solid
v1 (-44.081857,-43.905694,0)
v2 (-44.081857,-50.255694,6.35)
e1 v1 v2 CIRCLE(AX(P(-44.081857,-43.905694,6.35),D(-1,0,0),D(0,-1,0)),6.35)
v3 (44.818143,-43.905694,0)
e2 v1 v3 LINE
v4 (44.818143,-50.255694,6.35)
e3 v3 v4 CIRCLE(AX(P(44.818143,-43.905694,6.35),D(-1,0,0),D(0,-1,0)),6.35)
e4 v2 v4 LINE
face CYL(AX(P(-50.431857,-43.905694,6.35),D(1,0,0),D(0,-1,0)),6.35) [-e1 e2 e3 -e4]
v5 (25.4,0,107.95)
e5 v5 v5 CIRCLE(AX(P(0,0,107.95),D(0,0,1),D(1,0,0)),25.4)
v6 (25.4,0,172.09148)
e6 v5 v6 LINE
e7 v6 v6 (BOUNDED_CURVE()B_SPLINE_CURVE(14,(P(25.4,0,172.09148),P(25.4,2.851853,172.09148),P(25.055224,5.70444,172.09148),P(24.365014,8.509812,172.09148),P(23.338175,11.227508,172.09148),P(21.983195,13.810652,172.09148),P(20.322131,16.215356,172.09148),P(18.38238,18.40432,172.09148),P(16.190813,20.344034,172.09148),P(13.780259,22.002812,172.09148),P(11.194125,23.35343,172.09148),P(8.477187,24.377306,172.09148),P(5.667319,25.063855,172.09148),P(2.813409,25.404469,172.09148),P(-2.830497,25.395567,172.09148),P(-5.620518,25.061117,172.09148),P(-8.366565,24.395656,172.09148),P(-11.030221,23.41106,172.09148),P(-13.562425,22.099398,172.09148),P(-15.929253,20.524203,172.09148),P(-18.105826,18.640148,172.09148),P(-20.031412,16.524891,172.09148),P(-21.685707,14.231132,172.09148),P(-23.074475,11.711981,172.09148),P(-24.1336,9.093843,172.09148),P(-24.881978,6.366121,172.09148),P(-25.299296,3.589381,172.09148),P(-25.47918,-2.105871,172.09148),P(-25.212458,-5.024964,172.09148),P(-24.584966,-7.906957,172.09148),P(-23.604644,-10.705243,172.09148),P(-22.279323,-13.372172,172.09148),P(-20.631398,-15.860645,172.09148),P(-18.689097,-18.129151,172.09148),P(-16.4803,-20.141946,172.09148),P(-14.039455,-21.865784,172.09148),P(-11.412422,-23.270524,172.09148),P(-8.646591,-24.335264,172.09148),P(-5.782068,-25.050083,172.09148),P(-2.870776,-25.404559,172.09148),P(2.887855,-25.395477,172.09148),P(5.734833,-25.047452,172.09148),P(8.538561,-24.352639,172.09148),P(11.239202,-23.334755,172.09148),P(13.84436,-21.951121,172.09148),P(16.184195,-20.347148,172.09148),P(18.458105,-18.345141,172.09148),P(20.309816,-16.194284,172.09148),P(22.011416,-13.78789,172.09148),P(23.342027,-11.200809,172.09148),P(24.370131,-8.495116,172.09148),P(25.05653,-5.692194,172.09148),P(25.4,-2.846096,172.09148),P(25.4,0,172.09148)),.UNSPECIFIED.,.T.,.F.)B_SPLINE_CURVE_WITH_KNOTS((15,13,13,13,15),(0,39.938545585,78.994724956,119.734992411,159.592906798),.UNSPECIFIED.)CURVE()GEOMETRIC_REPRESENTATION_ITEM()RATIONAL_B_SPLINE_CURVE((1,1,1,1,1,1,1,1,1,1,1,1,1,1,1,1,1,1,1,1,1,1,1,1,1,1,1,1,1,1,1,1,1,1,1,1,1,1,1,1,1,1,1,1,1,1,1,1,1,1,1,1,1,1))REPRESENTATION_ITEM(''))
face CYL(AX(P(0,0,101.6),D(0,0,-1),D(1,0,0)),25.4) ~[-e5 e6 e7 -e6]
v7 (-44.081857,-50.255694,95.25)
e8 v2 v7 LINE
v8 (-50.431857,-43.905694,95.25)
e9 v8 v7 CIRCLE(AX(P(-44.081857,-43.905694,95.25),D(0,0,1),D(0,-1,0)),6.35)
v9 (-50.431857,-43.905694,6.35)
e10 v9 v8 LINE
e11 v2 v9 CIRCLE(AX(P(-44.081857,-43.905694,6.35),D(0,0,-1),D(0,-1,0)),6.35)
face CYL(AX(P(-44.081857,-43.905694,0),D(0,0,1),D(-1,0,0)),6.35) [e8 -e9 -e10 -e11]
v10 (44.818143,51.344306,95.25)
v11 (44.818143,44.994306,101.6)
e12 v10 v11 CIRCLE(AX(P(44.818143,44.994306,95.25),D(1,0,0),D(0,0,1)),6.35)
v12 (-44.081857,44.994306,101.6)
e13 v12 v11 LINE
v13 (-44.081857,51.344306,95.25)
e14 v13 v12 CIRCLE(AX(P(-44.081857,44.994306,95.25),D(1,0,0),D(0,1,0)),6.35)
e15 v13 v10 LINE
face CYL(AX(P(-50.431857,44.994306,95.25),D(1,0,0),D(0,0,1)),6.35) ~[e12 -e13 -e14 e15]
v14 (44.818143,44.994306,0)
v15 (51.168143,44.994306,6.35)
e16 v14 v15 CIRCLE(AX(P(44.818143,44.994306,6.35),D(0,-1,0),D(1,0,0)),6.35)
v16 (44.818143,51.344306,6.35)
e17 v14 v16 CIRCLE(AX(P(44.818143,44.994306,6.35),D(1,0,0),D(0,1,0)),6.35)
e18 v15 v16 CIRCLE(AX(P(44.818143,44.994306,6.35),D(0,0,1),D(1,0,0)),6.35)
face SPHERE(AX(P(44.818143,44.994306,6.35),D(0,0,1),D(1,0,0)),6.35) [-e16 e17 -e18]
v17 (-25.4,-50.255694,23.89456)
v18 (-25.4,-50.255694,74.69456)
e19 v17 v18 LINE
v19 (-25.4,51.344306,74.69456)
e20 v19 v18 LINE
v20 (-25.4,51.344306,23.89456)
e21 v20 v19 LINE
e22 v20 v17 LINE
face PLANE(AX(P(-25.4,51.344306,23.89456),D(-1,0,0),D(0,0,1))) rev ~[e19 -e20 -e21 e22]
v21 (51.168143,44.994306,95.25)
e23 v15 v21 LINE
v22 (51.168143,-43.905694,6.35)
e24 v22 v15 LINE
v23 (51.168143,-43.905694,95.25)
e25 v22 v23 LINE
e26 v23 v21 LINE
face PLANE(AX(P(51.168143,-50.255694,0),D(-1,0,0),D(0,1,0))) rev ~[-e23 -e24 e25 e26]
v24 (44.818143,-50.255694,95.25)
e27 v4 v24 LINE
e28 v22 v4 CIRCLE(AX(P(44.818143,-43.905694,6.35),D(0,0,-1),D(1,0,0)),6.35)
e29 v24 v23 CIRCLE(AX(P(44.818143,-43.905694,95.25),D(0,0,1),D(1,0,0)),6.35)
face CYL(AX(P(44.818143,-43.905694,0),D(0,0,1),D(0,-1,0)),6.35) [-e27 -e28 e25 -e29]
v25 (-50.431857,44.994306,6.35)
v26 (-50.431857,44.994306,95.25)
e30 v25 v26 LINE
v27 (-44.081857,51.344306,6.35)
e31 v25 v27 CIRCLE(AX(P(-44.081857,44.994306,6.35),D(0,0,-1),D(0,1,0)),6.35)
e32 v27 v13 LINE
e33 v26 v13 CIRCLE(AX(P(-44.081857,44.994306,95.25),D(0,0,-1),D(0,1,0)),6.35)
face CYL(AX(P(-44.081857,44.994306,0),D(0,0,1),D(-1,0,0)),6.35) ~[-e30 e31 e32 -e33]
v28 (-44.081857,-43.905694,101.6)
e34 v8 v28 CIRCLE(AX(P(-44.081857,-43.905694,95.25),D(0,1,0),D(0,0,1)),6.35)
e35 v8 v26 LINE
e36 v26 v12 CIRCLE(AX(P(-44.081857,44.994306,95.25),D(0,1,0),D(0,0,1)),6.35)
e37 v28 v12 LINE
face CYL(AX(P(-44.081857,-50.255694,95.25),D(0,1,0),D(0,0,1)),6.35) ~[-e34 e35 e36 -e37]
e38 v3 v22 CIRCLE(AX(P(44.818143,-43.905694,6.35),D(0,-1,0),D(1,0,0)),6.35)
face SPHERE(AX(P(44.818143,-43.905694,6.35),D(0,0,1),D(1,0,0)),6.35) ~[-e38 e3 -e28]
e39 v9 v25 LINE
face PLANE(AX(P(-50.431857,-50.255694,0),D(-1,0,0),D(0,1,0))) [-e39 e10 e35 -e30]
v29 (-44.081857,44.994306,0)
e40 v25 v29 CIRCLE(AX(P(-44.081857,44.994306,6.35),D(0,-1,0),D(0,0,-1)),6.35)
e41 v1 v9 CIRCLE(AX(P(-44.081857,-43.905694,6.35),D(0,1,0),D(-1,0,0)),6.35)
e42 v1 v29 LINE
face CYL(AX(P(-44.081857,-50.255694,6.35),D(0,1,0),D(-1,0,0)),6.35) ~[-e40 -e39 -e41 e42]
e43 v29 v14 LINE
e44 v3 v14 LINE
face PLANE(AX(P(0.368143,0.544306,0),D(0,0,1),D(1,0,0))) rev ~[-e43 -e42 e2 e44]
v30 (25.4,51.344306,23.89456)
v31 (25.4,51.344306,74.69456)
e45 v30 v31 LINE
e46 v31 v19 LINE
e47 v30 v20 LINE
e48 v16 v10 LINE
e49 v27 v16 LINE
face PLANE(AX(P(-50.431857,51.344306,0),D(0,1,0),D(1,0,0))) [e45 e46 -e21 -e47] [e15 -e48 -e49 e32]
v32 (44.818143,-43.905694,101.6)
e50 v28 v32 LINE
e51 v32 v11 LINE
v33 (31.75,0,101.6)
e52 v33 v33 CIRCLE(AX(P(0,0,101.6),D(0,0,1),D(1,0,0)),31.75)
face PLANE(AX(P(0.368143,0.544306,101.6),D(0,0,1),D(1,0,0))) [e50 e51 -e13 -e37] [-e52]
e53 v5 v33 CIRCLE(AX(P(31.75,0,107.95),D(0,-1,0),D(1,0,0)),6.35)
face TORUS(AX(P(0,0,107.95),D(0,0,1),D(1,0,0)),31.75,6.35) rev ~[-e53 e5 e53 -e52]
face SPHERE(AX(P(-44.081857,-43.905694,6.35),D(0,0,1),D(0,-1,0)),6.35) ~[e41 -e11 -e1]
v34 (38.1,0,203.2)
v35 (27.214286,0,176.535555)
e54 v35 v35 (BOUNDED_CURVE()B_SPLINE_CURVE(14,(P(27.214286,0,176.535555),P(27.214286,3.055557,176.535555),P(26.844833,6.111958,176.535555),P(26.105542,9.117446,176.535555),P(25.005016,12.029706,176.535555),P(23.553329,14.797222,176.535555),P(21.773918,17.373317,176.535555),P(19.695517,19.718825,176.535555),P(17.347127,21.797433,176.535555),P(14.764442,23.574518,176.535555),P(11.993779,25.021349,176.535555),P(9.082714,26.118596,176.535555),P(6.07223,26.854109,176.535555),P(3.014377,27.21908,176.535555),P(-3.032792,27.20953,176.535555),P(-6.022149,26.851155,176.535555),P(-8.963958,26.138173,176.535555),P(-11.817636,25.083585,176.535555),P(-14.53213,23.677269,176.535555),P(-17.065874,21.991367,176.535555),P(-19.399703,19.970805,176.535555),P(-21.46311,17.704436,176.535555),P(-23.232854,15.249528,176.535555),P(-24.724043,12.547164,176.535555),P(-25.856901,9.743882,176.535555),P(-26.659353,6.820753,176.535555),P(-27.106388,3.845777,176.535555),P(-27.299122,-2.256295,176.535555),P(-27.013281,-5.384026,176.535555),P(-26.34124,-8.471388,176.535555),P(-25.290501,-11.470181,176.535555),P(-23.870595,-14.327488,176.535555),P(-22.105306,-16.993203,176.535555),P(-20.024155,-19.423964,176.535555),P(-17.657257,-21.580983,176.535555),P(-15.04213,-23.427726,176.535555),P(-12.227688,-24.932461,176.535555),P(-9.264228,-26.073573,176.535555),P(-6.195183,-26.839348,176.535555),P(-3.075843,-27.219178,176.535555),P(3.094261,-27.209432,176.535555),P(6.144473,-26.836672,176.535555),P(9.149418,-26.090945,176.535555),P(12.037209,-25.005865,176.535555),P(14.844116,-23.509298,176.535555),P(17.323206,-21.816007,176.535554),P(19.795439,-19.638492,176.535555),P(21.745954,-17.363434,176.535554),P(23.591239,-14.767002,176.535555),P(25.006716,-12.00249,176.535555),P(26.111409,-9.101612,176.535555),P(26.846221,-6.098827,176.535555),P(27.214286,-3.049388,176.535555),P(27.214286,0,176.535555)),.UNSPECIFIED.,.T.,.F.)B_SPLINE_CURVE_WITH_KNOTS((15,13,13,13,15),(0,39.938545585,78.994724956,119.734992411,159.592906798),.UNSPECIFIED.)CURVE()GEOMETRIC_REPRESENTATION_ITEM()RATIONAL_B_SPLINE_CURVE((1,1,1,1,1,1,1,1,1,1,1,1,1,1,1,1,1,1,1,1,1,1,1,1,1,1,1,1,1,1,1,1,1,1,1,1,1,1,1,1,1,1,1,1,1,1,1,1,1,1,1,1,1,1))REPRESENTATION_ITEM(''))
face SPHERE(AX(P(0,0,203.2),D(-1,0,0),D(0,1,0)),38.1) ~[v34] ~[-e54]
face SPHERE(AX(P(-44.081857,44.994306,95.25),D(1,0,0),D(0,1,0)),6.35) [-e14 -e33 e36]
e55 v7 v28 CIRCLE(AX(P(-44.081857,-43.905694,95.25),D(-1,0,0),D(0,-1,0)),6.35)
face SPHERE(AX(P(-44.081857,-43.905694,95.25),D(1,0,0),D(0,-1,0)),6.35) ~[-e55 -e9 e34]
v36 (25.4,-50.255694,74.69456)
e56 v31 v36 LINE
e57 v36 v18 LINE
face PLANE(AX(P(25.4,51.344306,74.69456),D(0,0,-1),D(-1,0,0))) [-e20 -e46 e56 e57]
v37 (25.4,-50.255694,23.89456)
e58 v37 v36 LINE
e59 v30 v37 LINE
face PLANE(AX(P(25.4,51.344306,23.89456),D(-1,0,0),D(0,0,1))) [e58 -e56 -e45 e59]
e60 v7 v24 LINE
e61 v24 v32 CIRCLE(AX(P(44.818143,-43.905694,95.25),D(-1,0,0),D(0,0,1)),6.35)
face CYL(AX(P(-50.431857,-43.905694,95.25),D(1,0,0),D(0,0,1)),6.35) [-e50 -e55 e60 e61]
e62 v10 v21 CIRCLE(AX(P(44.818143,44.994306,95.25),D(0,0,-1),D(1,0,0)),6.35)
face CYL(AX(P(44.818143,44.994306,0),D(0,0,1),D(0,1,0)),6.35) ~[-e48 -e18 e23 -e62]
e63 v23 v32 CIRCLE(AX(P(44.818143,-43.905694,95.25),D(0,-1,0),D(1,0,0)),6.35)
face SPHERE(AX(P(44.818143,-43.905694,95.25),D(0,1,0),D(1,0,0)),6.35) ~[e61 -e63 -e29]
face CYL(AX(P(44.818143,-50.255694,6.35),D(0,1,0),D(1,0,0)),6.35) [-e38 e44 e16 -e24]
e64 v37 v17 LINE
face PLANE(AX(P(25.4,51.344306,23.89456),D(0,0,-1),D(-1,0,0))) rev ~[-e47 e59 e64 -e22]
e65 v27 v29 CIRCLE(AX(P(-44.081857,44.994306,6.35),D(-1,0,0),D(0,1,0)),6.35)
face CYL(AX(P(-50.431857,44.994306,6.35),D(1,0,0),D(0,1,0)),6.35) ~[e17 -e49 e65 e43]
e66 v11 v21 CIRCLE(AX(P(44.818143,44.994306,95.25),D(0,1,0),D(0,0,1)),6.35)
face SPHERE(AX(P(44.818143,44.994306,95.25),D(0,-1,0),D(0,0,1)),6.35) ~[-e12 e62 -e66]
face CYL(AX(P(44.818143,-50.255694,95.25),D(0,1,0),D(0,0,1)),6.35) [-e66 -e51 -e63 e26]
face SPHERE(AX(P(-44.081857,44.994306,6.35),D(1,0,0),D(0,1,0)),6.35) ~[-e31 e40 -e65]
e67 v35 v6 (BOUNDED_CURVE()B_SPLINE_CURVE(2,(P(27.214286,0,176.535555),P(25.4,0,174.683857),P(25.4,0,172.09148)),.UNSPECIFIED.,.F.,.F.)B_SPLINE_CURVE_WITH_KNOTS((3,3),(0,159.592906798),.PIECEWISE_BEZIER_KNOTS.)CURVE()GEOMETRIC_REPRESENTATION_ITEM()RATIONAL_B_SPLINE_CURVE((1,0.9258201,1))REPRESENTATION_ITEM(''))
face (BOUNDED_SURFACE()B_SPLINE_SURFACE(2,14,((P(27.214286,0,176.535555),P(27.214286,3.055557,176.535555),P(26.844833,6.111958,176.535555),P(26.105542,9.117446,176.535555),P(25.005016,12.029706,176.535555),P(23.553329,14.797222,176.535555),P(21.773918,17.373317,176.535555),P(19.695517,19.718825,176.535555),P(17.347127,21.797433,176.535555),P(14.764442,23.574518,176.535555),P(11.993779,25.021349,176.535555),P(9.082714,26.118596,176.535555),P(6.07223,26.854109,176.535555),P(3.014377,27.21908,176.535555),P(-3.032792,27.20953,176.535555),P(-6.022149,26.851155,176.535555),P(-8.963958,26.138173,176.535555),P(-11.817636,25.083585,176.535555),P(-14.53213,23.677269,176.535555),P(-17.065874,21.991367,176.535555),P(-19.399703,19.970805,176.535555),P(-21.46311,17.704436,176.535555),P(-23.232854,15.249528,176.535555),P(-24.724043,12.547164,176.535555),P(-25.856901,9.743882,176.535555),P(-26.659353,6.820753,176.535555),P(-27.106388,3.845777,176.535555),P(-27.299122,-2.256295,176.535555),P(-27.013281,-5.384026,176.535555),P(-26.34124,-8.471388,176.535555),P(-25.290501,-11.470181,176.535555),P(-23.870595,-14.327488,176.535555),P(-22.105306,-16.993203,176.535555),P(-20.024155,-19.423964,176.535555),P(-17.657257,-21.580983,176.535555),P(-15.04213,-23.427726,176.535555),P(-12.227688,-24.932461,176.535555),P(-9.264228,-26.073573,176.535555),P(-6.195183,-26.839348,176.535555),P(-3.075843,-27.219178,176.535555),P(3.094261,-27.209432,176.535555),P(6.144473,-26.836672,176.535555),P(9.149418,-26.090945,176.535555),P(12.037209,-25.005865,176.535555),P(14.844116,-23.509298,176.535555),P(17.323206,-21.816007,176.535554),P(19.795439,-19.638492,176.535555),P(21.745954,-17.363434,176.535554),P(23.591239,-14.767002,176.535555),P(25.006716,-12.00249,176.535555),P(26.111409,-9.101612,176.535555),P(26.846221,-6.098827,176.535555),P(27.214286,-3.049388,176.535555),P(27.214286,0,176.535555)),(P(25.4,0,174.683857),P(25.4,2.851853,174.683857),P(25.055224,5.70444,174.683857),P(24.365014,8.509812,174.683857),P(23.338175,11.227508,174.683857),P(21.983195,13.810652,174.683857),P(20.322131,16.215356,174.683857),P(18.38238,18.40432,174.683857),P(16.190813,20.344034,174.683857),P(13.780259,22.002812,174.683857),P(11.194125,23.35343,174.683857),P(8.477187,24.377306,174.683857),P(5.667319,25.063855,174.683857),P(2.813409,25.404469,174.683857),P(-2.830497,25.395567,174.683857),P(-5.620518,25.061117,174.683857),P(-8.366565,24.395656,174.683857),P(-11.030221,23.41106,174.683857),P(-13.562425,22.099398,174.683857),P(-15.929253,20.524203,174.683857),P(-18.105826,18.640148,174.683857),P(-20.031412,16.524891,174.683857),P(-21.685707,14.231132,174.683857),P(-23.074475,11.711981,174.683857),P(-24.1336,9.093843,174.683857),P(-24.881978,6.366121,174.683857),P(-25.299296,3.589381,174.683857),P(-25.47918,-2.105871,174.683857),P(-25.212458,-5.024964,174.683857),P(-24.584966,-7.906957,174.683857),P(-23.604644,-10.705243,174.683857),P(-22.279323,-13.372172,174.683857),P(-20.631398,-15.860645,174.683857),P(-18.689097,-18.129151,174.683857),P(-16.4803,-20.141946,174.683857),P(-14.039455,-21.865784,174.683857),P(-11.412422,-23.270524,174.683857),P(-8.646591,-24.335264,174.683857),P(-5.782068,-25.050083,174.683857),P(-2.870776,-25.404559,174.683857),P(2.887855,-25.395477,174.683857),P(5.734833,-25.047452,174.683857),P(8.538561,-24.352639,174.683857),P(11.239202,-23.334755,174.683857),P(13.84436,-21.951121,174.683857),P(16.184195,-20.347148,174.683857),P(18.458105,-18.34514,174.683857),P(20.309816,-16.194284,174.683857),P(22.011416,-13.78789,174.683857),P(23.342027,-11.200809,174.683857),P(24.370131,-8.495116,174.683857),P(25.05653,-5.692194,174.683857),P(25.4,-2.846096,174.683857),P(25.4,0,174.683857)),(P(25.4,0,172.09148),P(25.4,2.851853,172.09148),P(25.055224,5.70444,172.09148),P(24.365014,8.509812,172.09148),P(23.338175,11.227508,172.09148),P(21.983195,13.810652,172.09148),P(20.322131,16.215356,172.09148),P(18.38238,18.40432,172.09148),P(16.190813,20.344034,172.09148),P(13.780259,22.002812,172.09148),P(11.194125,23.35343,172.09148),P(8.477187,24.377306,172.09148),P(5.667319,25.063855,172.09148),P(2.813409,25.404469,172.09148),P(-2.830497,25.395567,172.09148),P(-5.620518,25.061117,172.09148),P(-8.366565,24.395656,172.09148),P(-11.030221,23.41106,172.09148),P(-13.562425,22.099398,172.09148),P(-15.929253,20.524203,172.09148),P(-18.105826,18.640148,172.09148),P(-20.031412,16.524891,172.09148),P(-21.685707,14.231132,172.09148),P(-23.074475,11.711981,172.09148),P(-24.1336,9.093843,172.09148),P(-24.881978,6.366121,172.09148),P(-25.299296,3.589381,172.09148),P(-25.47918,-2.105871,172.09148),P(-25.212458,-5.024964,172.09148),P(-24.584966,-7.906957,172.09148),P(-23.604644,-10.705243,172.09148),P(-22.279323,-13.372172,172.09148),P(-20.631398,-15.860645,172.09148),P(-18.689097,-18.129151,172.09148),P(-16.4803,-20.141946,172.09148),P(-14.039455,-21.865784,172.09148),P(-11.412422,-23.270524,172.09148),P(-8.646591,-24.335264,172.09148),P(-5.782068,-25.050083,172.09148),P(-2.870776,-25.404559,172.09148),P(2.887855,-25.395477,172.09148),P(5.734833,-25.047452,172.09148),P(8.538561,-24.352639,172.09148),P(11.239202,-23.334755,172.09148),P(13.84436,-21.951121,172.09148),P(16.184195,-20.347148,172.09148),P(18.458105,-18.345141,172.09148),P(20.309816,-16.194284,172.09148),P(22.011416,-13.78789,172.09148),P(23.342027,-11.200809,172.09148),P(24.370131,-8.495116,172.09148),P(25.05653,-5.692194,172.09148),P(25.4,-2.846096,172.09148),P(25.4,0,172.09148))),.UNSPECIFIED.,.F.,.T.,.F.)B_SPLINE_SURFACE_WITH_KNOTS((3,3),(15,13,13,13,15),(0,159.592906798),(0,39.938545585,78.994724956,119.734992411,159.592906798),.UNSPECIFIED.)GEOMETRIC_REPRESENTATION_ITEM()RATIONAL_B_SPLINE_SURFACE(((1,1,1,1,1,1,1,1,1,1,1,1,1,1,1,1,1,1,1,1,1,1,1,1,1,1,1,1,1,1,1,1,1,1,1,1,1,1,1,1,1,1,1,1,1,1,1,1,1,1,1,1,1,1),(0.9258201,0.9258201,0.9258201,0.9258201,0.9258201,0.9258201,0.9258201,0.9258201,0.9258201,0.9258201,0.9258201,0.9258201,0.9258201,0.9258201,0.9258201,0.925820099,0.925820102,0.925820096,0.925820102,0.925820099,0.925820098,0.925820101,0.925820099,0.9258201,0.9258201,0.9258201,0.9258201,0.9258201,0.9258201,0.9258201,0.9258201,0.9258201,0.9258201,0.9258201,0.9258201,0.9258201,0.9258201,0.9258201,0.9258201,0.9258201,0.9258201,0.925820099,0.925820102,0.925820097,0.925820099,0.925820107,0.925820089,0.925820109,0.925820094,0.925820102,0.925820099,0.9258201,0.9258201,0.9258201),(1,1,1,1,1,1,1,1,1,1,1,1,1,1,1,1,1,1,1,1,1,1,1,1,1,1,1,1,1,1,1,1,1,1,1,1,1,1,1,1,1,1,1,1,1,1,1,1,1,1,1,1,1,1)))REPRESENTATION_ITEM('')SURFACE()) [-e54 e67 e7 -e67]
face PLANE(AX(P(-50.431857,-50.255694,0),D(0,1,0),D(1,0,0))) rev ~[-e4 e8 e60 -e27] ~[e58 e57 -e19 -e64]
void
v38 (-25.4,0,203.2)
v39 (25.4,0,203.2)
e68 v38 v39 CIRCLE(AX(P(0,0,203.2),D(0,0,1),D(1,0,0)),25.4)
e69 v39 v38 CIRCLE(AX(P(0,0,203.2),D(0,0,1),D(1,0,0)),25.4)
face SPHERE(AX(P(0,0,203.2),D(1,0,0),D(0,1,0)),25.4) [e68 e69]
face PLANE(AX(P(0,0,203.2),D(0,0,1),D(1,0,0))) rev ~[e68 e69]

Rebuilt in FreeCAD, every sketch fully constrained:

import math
import FreeCAD as App
import Part
import Sketcher
Q = App.Units.Quantity


def edges_at(feature, points):
    """Names of the edges that pass closest to the given points."""
    edges = feature.Shape.Edges
    near = lambda p: min(range(len(edges)), key=lambda i: edges[i].distToShape(Part.Vertex(*p))[0])
    return sorted({f"Edge{near(p) + 1}" for p in points})

doc = App.newDocument("Part")
body = doc.addObject("PartDesign::Body", "Body")

# Sketch on XY plane
sketch1 = body.newObject("Sketcher::SketchObject", "Sketch")
sketch1.AttachmentSupport = (doc.getObject("XY_Plane"), [""])
sketch1.MapMode = "FlatFace"
sketch1.addGeometry([
    Part.LineSegment(App.Vector(-50, 51, 0), App.Vector(-50, -50, 0)),
    Part.LineSegment(App.Vector(-50, -50, 0), App.Vector(51, -50, 0)),
    Part.LineSegment(App.Vector(51, -50, 0), App.Vector(51, 51, 0)),
    Part.LineSegment(App.Vector(51, 51, 0), App.Vector(-50, 51, 0)),
], False)
sketch1.addConstraint([
    Sketcher.Constraint("Coincident", 0, 2, 1, 1),
    Sketcher.Constraint("Coincident", 1, 2, 2, 1),
    Sketcher.Constraint("Coincident", 2, 2, 3, 1),
    Sketcher.Constraint("Coincident", 3, 2, 0, 1),
    Sketcher.Constraint("Vertical", 0),
    Sketcher.Constraint("Horizontal", 1),
    Sketcher.Constraint("Vertical", 2),
    Sketcher.Constraint("Horizontal", 3),
    Sketcher.Constraint("Equal", 3, 0),
    Sketcher.Constraint("DistanceX", 1, 1, 1, 2, Q("4 in")),
    Sketcher.Constraint("DistanceX", 0, 2, -1, 1, Q("50.431857 mm")),
    Sketcher.Constraint("DistanceY", 0, 2, -1, 1, Q("50.255694 mm")),
])
pad1 = body.newObject("PartDesign::Pad", "Pad")
pad1.Profile = sketch1
pad1.Length = Q("4 in")

# Sketch on XY plane
sketch2 = body.newObject("Sketcher::SketchObject", "Sketch001")
sketch2.AttachmentSupport = (doc.getObject("XY_Plane"), [""])
sketch2.MapMode = "FlatFace"
sketch2.AttachmentOffset = App.Placement(App.Vector(0, 0, 4 * 25.4), App.Rotation())
sketch2.addGeometry(Part.Circle(App.Vector(0, 0, 0), App.Vector(0, 0, 1), 25), False)
sketch2.addConstraint([
    Sketcher.Constraint("Coincident", 0, 3, -1, 1),
    Sketcher.Constraint("Diameter", 0, Q("2 in")),
])
pad2 = body.newObject("PartDesign::Pad", "Pad001")
pad2.Profile = sketch2
pad2.Length = Q("4 in")

# Sketch on XY plane
sketch3 = body.newObject("Sketcher::SketchObject", "Sketch002")
sketch3.AttachmentSupport = (doc.getObject("XY_Plane"), [""])
sketch3.MapMode = "FlatFace"
sketch3.AttachmentOffset = App.Placement(App.Vector(0, 0, 8 * 25.4), App.Rotation())
sketch3.addGeometry([
    Part.LineSegment(App.Vector(25, 0, 0), App.Vector(38, 0, 0)),
    Part.ArcOfCircle(Part.Circle(App.Vector(0, 0, 0), App.Vector(0, 0, 1), 38), math.radians(0), math.radians(180)),
    Part.LineSegment(App.Vector(-38, 0, 0), App.Vector(-25, 0, 0)),
    Part.ArcOfCircle(Part.Circle(App.Vector(0, 0, 0), App.Vector(0, 0, 1), 25), math.radians(0), math.radians(180)),
], False)
sketch3.addConstraint([
    Sketcher.Constraint("Coincident", 0, 2, 1, 1),
    Sketcher.Constraint("Coincident", 1, 2, 2, 1),
    Sketcher.Constraint("Coincident", 2, 2, 3, 2),
    Sketcher.Constraint("Coincident", 3, 1, 0, 1),
    Sketcher.Constraint("Horizontal", 0),
    Sketcher.Constraint("Horizontal", 2),
    Sketcher.Constraint("Coincident", 1, 3, -1, 1),
    Sketcher.Constraint("Coincident", 3, 3, -1, 1),
    Sketcher.Constraint("PointOnObject", 0, 2, -1),
    Sketcher.Constraint("PointOnObject", 1, 2, -1),
    Sketcher.Constraint("Radius", 3, Q("1 in")),
    Sketcher.Constraint("Radius", 1, Q("1.5 in")),
])
revolution = body.newObject("PartDesign::Revolution", "Revolution")
revolution.Profile = sketch3
revolution.ReferenceAxis = (sketch3, ["H_Axis"])
revolution.Angle = 360

# Sketch on XZ plane
sketch4 = body.newObject("Sketcher::SketchObject", "Sketch003")
sketch4.AttachmentSupport = (doc.getObject("XZ_Plane"), [""])
sketch4.MapMode = "FlatFace"
sketch4.AttachmentOffset = App.Placement(App.Vector(0, 0, -51.344306), App.Rotation())
sketch4.addGeometry([
    Part.LineSegment(App.Vector(25, 75, 0), App.Vector(25, 24, 0)),
    Part.LineSegment(App.Vector(25, 24, 0), App.Vector(-25, 24, 0)),
    Part.LineSegment(App.Vector(-25, 24, 0), App.Vector(-25, 75, 0)),
    Part.LineSegment(App.Vector(-25, 75, 0), App.Vector(25, 75, 0)),
], False)
sketch4.addConstraint([
    Sketcher.Constraint("Coincident", 0, 2, 1, 1),
    Sketcher.Constraint("Coincident", 1, 2, 2, 1),
    Sketcher.Constraint("Coincident", 2, 2, 3, 1),
    Sketcher.Constraint("Coincident", 3, 2, 0, 1),
    Sketcher.Constraint("Vertical", 0),
    Sketcher.Constraint("Horizontal", 1),
    Sketcher.Constraint("Vertical", 2),
    Sketcher.Constraint("Horizontal", 3),
    Sketcher.Constraint("Equal", 3, 0),
    Sketcher.Constraint("DistanceX", 1, 2, 1, 1, Q("2 in")),
    Sketcher.Constraint("DistanceX", -1, 1, 0, 2, Q("1 in")),
    Sketcher.Constraint("DistanceY", -1, 1, 0, 2, Q("23.89456 mm")),
])
pocket1 = body.newObject("PartDesign::Pocket", "Pocket")
pocket1.Profile = sketch4
pocket1.Length = Q("4 in")
pocket1.Reversed = True
doc.recompute()

fillet = body.newObject("PartDesign::Fillet", "Fillet")
fillet.Base = (pocket1, edges_at(pocket1, [
    (51.168, 0.544, 101.6),
    (0.368, 51.344, 101.6),
    (51.168, -50.256, 50.8),
    (51.168, 51.344, 50.8),
    (51.168, 0.544, 0),
    (0.368, 51.344, 0),
    (-50.432, 51.344, 50.8),
    (-25.4, 0, 174.802),
    (-25.4, 0, 101.6),
    (0.368, -50.256, 101.6),
    (-50.432, -50.256, 50.8),
    (0.368, -50.256, 0),
    (-50.432, 0.544, 101.6),
    (-50.432, 0.544, 0),
]))
fillet.Radius = Q("0.25 in")

doc.recompute()
